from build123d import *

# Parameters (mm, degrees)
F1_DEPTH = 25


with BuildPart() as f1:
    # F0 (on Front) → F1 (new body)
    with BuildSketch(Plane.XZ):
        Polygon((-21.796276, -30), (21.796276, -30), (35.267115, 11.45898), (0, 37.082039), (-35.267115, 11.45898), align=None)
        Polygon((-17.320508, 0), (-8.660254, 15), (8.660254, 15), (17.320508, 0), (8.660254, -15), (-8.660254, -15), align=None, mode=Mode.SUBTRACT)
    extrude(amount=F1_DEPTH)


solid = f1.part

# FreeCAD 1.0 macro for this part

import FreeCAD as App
import Part
import Sketcher
Q = App.Units.Quantity

doc = App.newDocument("Part")
body = doc.addObject("PartDesign::Body", "Body")

sketch1 = body.newObject("Sketcher::SketchObject", "Sketch")
sketch1.AttachmentSupport = (doc.getObject("XZ_Plane"), [""])
sketch1.MapMode = "FlatFace"
sketch1.addGeometry(Part.LineSegment(App.Vector(-21.796276, -30, 0), App.Vector(21.796276, -30, 0)), False)
sketch1.addGeometry(Part.LineSegment(App.Vector(21.796276, -30, 0), App.Vector(35.267115, 11.45898, 0)), False)
sketch1.addGeometry(Part.LineSegment(App.Vector(35.267115, 11.45898, 0), App.Vector(0, 37.082039, 0)), False)
sketch1.addGeometry(Part.LineSegment(App.Vector(0, 37.082039, 0), App.Vector(-35.267115, 11.45898, 0)), False)
sketch1.addGeometry(Part.LineSegment(App.Vector(-35.267115, 11.45898, 0), App.Vector(-21.796276, -30, 0)), False)
sketch1.addGeometry(Part.LineSegment(App.Vector(-8.660254, -15, 0), App.Vector(-17.320508, 0, 0)), False)
sketch1.addGeometry(Part.LineSegment(App.Vector(-17.320508, 0, 0), App.Vector(-8.660254, 15, 0)), False)
sketch1.addGeometry(Part.LineSegment(App.Vector(-8.660254, 15, 0), App.Vector(8.660254, 15, 0)), False)
sketch1.addGeometry(Part.LineSegment(App.Vector(8.660254, 15, 0), App.Vector(17.320508, 0, 0)), False)
sketch1.addGeometry(Part.LineSegment(App.Vector(17.320508, 0, 0), App.Vector(8.660254, -15, 0)), False)
sketch1.addGeometry(Part.LineSegment(App.Vector(8.660254, -15, 0), App.Vector(-8.660254, -15, 0)), False)
sketch1.addConstraint(Sketcher.Constraint("Coincident", 0, 2, 1, 1))
sketch1.addConstraint(Sketcher.Constraint("Coincident", 1, 2, 2, 1))
sketch1.addConstraint(Sketcher.Constraint("Coincident", 2, 2, 3, 1))
sketch1.addConstraint(Sketcher.Constraint("Coincident", 3, 2, 4, 1))
sketch1.addConstraint(Sketcher.Constraint("Coincident", 4, 2, 0, 1))
sketch1.addConstraint(Sketcher.Constraint("Coincident", 5, 2, 6, 1))
sketch1.addConstraint(Sketcher.Constraint("Coincident", 6, 2, 7, 1))
sketch1.addConstraint(Sketcher.Constraint("Coincident", 7, 2, 8, 1))
sketch1.addConstraint(Sketcher.Constraint("Coincident", 8, 2, 9, 1))
sketch1.addConstraint(Sketcher.Constraint("Coincident", 9, 2, 10, 1))
sketch1.addConstraint(Sketcher.Constraint("Coincident", 10, 2, 5, 1))
sketch1.addConstraint(Sketcher.Constraint("Horizontal", 0))
sketch1.addConstraint(Sketcher.Constraint("Horizontal", 7))
sketch1.addConstraint(Sketcher.Constraint("Horizontal", 10))
sketch1.addConstraint(Sketcher.Constraint("Symmetric", 5, 2, 8, 2, -1, 1))
sketch1.addConstraint(Sketcher.Constraint("Symmetric", 6, 2, 9, 2, -1, 1))
sketch1.addConstraint(Sketcher.Constraint("Symmetric", 1, 2, 3, 2, -2))
sketch1.addConstraint(Sketcher.Constraint("PointOnObject", 2, 2, -2))
sketch1.addConstraint(Sketcher.Constraint("PointOnObject", 5, 2, -1))
sketch1.addConstraint(Sketcher.Constraint("Parallel", 5, 8))
sketch1.addConstraint(Sketcher.Constraint("Vertical", 7, 2, 9, 2))
sketch1.addConstraint(Sketcher.Constraint("Equal", 1, 2))
sketch1.addConstraint(Sketcher.Constraint("Equal", 3, 4))
sketch1.addConstraint(Sketcher.Constraint("Angle", 1, Q("72 deg")))
sketch1.addConstraint(Sketcher.Constraint("Angle", 2, Q("144 deg")))
sketch1.addConstraint(Sketcher.Constraint("Angle", 5, Q("120 deg")))
sketch1.addConstraint(Sketcher.Constraint("DistanceY", 0, 2, -1, 1, Q("30 mm")))
sketch1.addConstraint(Sketcher.Constraint("DistanceY", -1, 1, 6, 2, Q("15 mm")))
sketch1.addConstraint(Sketcher.Constraint("DistanceX", 0, 1, 0, 2, Q("43.592552 mm")))
sketch1.addConstraint(Sketcher.Constraint("DistanceX", 7, 1, 7, 2, Q("17.320508 mm")))
pad1 = body.newObject("PartDesign::Pad", "Pad")
pad1.Profile = sketch1
pad1.Length = 25

doc.recompute()
